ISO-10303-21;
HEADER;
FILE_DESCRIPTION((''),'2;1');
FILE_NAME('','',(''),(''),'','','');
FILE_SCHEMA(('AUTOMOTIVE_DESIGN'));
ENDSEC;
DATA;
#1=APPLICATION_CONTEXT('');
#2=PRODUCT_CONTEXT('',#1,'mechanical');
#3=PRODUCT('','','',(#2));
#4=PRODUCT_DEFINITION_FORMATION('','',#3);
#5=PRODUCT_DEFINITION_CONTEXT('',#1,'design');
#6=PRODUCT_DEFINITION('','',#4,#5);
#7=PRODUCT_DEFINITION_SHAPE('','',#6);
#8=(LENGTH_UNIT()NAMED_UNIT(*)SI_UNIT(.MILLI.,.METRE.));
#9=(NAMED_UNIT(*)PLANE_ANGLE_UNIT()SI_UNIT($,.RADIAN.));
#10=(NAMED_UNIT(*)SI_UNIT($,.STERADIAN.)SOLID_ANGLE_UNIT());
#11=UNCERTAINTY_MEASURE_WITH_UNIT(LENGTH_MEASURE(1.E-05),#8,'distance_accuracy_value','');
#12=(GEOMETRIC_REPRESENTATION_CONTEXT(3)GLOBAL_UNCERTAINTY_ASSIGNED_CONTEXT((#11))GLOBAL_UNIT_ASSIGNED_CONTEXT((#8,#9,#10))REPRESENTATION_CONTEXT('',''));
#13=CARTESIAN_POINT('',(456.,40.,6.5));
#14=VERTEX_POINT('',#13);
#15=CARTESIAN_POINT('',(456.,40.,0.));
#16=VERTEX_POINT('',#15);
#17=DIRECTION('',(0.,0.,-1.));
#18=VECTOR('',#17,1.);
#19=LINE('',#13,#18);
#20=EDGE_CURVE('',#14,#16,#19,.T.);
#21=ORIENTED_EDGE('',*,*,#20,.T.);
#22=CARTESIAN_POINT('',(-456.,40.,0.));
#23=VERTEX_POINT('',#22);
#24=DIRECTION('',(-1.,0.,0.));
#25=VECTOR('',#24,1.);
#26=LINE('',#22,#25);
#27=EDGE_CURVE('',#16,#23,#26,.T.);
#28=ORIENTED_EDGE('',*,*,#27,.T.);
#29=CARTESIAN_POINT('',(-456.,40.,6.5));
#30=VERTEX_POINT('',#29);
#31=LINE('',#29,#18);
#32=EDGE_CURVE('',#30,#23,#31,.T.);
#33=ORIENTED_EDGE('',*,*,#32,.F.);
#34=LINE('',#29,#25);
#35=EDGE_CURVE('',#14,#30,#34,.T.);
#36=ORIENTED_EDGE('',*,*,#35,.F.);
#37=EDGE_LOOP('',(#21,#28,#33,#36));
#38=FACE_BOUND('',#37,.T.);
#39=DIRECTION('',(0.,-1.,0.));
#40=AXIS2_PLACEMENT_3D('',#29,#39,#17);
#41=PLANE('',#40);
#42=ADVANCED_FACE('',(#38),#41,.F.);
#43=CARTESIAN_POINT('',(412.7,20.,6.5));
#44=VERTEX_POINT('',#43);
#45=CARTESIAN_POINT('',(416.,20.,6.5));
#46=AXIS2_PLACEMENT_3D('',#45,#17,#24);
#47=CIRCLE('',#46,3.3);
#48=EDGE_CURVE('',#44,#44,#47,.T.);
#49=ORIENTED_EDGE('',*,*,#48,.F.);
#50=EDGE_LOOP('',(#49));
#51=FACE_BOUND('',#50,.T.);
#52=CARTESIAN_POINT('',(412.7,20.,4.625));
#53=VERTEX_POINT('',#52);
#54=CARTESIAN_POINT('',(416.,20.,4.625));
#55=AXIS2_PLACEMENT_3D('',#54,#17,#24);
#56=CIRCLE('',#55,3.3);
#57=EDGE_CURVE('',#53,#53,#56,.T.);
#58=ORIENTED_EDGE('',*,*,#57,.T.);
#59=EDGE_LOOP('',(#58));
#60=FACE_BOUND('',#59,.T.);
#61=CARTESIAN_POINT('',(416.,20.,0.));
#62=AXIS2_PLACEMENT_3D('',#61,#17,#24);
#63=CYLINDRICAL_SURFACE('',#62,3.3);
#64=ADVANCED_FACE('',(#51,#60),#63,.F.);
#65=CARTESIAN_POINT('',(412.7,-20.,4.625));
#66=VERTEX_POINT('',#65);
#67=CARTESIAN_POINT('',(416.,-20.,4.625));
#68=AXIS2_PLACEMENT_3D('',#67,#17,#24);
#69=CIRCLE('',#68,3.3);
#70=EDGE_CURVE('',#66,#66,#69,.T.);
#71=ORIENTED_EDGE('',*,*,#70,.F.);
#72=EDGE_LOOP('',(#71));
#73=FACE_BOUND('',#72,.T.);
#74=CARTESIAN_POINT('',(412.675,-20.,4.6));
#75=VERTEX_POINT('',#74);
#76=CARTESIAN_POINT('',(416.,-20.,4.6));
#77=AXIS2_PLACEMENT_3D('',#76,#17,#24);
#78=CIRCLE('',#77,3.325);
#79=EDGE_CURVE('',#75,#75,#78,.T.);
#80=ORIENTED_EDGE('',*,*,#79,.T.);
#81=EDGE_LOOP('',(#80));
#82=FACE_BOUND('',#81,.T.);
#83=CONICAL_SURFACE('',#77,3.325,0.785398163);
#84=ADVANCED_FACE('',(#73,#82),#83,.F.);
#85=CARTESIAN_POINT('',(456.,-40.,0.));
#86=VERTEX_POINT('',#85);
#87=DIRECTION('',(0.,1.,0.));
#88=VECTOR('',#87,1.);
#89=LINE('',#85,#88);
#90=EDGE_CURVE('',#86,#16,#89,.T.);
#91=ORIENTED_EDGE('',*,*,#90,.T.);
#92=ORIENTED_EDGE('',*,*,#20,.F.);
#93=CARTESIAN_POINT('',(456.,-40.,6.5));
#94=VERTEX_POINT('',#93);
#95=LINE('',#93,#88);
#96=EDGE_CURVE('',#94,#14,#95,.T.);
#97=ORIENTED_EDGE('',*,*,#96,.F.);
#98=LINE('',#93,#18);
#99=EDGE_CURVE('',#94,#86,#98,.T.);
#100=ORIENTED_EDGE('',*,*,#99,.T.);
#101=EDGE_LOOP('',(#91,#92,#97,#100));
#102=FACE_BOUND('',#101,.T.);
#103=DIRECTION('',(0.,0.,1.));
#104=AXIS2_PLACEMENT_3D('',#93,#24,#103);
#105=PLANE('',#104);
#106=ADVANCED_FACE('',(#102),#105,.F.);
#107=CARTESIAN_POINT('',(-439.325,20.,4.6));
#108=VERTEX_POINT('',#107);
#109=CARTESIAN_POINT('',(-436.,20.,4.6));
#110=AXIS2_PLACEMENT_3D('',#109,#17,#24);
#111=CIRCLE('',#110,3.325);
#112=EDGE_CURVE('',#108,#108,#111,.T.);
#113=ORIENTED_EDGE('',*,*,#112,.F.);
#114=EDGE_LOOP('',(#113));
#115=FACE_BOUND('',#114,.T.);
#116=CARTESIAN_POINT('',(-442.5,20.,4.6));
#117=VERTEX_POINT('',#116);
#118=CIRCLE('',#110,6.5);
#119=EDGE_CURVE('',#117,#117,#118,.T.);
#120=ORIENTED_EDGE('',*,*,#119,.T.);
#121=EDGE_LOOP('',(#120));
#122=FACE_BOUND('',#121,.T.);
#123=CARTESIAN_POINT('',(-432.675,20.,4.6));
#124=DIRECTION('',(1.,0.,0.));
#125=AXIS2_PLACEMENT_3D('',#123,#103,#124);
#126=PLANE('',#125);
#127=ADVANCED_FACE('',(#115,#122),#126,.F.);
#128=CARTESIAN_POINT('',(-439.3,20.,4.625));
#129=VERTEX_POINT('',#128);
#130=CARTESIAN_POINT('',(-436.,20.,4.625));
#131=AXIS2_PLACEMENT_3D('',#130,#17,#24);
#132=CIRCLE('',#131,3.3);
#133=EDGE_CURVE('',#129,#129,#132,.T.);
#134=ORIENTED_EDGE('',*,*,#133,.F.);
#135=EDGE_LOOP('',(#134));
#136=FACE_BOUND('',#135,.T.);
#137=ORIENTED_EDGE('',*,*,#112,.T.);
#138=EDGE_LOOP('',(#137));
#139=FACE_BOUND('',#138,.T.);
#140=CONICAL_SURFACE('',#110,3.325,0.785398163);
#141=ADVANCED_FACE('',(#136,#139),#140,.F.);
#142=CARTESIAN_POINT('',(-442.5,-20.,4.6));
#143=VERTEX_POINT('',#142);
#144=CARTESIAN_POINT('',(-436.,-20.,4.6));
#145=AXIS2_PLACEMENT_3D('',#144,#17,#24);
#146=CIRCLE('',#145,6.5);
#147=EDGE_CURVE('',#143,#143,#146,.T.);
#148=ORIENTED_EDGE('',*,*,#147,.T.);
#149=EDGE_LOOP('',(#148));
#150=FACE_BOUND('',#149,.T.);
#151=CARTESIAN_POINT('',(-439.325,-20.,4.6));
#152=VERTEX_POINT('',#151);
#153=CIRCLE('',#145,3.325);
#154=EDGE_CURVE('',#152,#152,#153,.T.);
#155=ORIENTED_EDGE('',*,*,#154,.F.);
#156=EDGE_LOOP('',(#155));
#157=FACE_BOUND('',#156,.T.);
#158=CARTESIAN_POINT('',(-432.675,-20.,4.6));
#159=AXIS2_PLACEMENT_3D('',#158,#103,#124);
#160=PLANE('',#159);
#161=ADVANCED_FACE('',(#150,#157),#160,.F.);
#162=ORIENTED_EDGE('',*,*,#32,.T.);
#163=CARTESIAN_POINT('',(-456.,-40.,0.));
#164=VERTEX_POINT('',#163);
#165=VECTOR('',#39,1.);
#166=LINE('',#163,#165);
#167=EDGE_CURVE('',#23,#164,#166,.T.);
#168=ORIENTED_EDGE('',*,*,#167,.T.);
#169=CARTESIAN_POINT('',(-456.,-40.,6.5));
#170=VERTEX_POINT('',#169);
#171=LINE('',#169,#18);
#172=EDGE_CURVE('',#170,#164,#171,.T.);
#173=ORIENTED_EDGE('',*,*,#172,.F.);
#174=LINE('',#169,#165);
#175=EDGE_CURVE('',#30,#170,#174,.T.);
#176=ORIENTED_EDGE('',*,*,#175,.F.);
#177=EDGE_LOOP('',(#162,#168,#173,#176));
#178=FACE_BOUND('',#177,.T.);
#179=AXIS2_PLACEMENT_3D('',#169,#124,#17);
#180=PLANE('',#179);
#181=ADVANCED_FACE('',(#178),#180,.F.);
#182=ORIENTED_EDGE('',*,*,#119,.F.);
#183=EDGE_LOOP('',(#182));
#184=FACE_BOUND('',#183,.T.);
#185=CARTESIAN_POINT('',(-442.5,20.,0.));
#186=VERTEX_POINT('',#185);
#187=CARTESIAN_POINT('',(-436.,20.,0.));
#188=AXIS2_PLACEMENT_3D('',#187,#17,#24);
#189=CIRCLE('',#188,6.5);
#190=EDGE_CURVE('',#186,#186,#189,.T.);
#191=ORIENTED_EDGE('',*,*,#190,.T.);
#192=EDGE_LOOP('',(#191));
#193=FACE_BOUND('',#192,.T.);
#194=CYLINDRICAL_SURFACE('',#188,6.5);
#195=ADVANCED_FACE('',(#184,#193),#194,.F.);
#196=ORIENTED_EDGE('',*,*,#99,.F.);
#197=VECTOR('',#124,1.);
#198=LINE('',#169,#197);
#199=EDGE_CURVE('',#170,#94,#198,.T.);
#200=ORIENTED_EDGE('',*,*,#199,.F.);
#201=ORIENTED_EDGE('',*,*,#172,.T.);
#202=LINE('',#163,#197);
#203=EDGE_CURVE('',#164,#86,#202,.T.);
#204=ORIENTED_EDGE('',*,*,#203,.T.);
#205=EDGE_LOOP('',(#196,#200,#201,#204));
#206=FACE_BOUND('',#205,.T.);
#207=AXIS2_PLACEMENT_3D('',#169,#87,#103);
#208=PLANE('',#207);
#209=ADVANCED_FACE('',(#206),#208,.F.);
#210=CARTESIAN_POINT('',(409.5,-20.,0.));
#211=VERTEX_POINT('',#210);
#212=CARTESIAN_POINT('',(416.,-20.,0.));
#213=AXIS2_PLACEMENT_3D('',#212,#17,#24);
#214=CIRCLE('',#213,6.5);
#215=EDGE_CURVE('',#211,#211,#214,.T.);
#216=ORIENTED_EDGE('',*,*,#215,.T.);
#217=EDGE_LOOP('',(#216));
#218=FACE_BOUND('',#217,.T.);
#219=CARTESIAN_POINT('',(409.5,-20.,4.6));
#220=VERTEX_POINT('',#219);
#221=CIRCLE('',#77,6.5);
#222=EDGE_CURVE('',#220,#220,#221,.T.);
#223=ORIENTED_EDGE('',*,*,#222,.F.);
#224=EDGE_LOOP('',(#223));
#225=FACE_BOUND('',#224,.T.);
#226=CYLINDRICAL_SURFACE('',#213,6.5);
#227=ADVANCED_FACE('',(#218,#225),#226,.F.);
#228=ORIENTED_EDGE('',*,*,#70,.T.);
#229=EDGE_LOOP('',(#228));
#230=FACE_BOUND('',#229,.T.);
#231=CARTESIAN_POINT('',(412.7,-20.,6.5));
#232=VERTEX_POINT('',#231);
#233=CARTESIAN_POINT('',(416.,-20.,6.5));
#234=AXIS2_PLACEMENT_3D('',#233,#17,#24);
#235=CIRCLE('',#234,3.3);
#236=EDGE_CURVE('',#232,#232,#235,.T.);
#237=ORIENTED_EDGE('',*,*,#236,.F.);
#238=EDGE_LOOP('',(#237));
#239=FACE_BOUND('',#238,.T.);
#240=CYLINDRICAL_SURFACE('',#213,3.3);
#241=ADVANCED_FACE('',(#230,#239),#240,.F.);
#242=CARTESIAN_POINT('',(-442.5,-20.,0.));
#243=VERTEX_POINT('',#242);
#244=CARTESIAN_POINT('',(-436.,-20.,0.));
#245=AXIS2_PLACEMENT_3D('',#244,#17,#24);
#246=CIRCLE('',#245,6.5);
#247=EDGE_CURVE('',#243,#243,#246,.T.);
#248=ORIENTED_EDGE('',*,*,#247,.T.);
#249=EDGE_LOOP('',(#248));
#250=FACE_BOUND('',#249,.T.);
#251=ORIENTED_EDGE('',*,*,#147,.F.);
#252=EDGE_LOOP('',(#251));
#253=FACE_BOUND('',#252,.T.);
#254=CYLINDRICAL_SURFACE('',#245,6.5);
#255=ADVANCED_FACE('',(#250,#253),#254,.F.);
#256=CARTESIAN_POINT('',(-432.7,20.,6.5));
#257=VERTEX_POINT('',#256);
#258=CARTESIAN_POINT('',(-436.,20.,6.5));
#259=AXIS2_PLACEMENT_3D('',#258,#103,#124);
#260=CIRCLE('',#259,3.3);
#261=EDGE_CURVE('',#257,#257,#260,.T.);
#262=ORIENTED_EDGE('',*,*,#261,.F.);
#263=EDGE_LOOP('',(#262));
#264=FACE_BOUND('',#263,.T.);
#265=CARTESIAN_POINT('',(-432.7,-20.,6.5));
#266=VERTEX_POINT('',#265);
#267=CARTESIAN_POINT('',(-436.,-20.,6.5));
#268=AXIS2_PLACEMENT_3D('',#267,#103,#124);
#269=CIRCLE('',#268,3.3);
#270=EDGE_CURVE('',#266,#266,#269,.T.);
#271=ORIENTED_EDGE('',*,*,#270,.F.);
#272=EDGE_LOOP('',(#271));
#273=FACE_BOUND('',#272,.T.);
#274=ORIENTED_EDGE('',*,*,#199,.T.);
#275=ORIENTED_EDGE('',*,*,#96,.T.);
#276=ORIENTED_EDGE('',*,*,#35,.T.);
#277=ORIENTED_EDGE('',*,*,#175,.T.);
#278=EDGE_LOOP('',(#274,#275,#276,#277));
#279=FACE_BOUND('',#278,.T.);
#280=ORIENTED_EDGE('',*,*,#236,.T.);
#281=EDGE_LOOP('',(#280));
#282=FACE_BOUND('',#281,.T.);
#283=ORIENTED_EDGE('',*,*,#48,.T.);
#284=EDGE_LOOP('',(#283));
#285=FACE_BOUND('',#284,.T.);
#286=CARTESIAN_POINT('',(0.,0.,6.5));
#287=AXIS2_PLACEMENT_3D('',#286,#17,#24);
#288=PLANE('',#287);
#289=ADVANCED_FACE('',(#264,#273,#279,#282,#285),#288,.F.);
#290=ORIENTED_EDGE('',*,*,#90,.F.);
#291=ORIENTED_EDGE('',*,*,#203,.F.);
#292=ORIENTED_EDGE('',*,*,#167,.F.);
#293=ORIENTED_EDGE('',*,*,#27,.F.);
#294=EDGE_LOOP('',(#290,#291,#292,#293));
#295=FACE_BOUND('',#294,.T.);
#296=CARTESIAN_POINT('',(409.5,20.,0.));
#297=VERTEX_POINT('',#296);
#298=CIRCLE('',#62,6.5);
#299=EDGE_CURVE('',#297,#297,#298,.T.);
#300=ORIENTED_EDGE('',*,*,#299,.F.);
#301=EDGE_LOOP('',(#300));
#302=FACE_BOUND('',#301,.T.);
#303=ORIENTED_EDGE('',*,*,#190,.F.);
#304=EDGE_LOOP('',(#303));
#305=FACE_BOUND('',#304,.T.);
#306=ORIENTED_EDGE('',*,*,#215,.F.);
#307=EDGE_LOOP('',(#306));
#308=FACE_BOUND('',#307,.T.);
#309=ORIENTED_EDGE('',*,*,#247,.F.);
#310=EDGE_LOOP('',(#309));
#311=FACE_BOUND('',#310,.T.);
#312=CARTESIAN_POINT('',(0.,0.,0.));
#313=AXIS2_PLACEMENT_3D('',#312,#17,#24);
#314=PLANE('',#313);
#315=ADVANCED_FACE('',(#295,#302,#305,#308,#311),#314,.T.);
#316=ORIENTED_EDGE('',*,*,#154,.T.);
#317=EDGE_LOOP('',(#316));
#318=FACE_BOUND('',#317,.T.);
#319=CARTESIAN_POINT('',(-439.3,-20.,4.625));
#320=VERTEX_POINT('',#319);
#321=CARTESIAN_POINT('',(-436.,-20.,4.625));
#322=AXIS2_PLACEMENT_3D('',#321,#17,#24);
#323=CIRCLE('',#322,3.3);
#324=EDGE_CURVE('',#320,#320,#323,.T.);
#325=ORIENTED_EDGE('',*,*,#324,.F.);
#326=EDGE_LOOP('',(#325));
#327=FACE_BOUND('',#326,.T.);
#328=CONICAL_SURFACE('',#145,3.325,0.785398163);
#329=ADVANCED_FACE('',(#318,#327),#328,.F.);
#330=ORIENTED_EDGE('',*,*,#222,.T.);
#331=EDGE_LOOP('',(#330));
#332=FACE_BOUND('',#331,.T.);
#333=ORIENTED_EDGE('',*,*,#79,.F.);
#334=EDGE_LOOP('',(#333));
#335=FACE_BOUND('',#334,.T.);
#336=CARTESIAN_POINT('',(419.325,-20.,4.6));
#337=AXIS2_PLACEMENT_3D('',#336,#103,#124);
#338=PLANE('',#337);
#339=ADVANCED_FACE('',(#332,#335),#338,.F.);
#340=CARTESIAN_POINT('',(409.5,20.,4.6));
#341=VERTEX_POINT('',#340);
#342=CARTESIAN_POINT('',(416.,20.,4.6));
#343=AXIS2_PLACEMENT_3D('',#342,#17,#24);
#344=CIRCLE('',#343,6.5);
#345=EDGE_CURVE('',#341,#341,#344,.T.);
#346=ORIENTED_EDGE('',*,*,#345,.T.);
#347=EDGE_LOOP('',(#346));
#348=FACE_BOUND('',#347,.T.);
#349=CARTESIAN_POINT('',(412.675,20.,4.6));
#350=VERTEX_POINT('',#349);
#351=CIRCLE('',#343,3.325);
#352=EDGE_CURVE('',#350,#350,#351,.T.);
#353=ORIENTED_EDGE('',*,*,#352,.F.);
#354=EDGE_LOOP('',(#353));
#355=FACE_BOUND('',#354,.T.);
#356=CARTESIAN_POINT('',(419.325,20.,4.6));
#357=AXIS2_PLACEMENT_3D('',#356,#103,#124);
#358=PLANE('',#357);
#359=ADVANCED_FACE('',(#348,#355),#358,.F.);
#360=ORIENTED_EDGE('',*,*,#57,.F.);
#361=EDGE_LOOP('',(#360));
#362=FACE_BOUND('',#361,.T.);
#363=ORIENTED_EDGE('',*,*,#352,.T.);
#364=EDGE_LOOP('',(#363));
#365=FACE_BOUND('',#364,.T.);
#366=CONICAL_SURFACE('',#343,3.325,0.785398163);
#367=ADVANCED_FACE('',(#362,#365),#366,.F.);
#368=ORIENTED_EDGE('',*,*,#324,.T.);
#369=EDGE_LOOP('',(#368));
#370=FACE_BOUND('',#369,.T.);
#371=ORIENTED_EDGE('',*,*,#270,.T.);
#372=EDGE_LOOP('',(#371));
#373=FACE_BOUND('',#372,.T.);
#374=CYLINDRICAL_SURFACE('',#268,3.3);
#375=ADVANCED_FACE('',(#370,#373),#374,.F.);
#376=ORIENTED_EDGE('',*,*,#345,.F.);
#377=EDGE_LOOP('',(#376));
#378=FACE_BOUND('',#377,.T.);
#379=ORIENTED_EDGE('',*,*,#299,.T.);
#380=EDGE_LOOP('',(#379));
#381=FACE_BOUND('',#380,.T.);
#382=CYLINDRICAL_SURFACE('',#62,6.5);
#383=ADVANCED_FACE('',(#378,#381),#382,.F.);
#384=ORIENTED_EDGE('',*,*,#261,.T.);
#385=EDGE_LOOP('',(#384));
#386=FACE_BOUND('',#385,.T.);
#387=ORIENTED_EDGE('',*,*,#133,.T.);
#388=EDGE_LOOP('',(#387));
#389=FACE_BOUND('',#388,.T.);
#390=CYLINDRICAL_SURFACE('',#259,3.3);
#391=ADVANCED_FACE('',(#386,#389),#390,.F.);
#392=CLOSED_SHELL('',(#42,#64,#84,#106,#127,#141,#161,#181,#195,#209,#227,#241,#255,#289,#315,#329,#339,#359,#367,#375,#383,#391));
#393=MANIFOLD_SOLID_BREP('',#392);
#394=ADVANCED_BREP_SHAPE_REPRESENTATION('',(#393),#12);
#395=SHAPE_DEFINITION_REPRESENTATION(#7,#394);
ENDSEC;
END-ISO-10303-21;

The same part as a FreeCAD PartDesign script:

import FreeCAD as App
import Part
import Sketcher

V = App.Vector
Q = App.Units.Quantity

doc = App.newDocument("Part")
body = doc.addObject("PartDesign::Body", "Body")

# Sketch on XY plane
sketch1 = body.newObject("Sketcher::SketchObject", "Sketch")
sketch1.AttachmentSupport = (doc.getObject("XY_Plane"), [""])
sketch1.MapMode = "FlatFace"
sketch1.addGeometry([
    Part.LineSegment(V(-456, 40, 0), V(-456, -40, 0)),
    Part.LineSegment(V(-456, -40, 0), V(456, -40, 0)),
    Part.LineSegment(V(456, -40, 0), V(456, 40, 0)),
    Part.LineSegment(V(456, 40, 0), V(-456, 40, 0)),
], False)
sketch1.addConstraint([
    Sketcher.Constraint("Coincident", 0, 2, 1, 1),
    Sketcher.Constraint("Coincident", 1, 2, 2, 1),
    Sketcher.Constraint("Coincident", 2, 2, 3, 1),
    Sketcher.Constraint("Coincident", 3, 2, 0, 1),
    Sketcher.Constraint("Vertical", 0),
    Sketcher.Constraint("Horizontal", 1),
    Sketcher.Constraint("Vertical", 2),
    Sketcher.Constraint("Horizontal", 3),
    Sketcher.Constraint("Symmetric", 0, 2, 2, 2, -1, 1),
    Sketcher.Constraint("DistanceX", 1, 1, 1, 2, Q("912 mm")),
    Sketcher.Constraint("DistanceY", 0, 2, 0, 1, Q("80 mm")),
])
pad1 = body.newObject("PartDesign::Pad", "Pad")
pad1.Profile = sketch1
pad1.Length = 6.5

# Sketch on XY plane
sketch2 = body.newObject("Sketcher::SketchObject", "Sketch001")
sketch2.AttachmentSupport = (doc.getObject("XY_Plane"), [""])
sketch2.MapMode = "FlatFace"
sketch2.AttachmentOffset = App.Placement(V(0, 0, 6.5), App.Rotation())
sketch2.addGeometry([
    Part.Circle(V(-436, 20, 0), V(0, 0, 1), 3.3),
    Part.Circle(V(-436, -20, 0), V(0, 0, 1), 3.3),
], False)
sketch2.addConstraint([
    Sketcher.Constraint("Equal", 0, 1),
    Sketcher.Constraint("Symmetric", 0, 3, 1, 3, -1),
    Sketcher.Constraint("Diameter", 0, Q("6.6 mm")),
    Sketcher.Constraint("DistanceX", 0, 3, -1, 1, Q("436 mm")),
    Sketcher.Constraint("DistanceY", -1, 1, 0, 3, Q("20 mm")),
])
doc.recompute()
hole = body.newObject("PartDesign::Hole", "Hole")
hole.Profile = sketch2
hole.ThreadType = "None"
hole.Diameter = 6.6
hole.DepthType = "ThroughAll"

# Sketch on YZ plane
sketch3 = body.newObject("Sketcher::SketchObject", "Sketch002")
sketch3.AttachmentSupport = (doc.getObject("YZ_Plane"), [""])
sketch3.MapMode = "FlatFace"
sketch3.AttachmentOffset = App.Placement(V(0, 0, -436), App.Rotation())
sketch3.addGeometry([
    Part.LineSegment(V(20, 6.5, 0), V(20, 0, 0)),  # 0
    Part.LineSegment(V(20, 0, 0), V(26.5, 0, 0)),  # 1
    Part.LineSegment(V(26.5, 0, 0), V(26.5, 4.6, 0)),  # 2
    Part.LineSegment(V(26.5, 4.6, 0), V(23.325, 4.6, 0)),  # 3
    Part.LineSegment(V(23.325, 4.6, 0), V(23.3, 4.625, 0)),  # 4
    Part.LineSegment(V(23.3, 4.625, 0), V(23.3, 6.5, 0)),  # 5
    Part.LineSegment(V(23.3, 6.5, 0), V(20, 6.5, 0)),  # 6
], False)
sketch3.addGeometry(Part.LineSegment(V(20, 0, 0), V(20, 6.5, 0)), True)  # axis
sketch3.addConstraint([
    Sketcher.Constraint("Coincident", 0, 2, 1, 1),
    Sketcher.Constraint("Coincident", 1, 2, 2, 1),
    Sketcher.Constraint("Coincident", 2, 2, 3, 1),
    Sketcher.Constraint("Coincident", 3, 2, 4, 1),
    Sketcher.Constraint("Coincident", 4, 2, 5, 1),
    Sketcher.Constraint("Coincident", 5, 2, 6, 1),
    Sketcher.Constraint("Coincident", 6, 2, 0, 1),
    Sketcher.Constraint("Vertical", 0),
    Sketcher.Constraint("Horizontal", 1),
    Sketcher.Constraint("Vertical", 2),
    Sketcher.Constraint("Horizontal", 3),
    Sketcher.Constraint("Vertical", 5),
    Sketcher.Constraint("Horizontal", 6),
    Sketcher.Constraint("Vertical", 7),
    Sketcher.Constraint("Coincident", 7, 1, 0, 2),
    Sketcher.Constraint("PointOnObject", 0, 2, -1),
    Sketcher.Constraint("Horizontal", 5, 2, 7, 2),
    Sketcher.Constraint("Equal", 1, 0),
    Sketcher.Constraint("Angle", 4, Q("135 deg")),
    Sketcher.Constraint("DistanceX", 1, 1, 1, 2, Q("6.5 mm")),
    Sketcher.Constraint("DistanceX", 6, 2, 6, 1, Q("3.3 mm")),
    Sketcher.Constraint("DistanceY", 2, 1, 2, 2, Q("4.6 mm")),
    Sketcher.Constraint("DistanceX", -1, 1, 0, 2, Q("20 mm")),
    Sketcher.Constraint("DistanceX", 3, 2, 3, 1, Q("3.175 mm")),
])
groove = body.newObject("PartDesign::Groove", "Groove")
groove.Profile = sketch3
groove.ReferenceAxis = (sketch3, ["Axis0"])
groove.Angle = 360
doc.recompute()

linearpattern = body.newObject("PartDesign::LinearPattern", "LinearPattern")
linearpattern.Originals = [groove]
linearpattern.Direction = (doc.getObject("Y_Axis"), [""])
linearpattern.Mode = "offset"
linearpattern.Offset = 40
linearpattern.Occurrences = 2
linearpattern.Reversed = True
body.Tip = linearpattern
doc.recompute()

linearpattern2 = body.newObject("PartDesign::LinearPattern", "LinearPattern001")
linearpattern2.Originals = [groove]
linearpattern2.Direction = (doc.getObject("X_Axis"), [""])
linearpattern2.Mode = "offset"
linearpattern2.Offset = 852
linearpattern2.Occurrences = 2
body.Tip = linearpattern2

# Sketch on YZ plane
sketch4 = body.newObject("Sketcher::SketchObject", "Sketch003")
sketch4.AttachmentSupport = (doc.getObject("YZ_Plane"), [""])
sketch4.MapMode = "FlatFace"
sketch4.AttachmentOffset = App.Placement(V(0, 0, 416), App.Rotation())
sketch4.addGeometry([
    Part.LineSegment(V(-20, 6.5, 0), V(-20, 0, 0)),  # 0
    Part.LineSegment(V(-20, 0, 0), V(-13.5, 0, 0)),  # 1
    Part.LineSegment(V(-13.5, 0, 0), V(-13.5, 4.6, 0)),  # 2
    Part.LineSegment(V(-13.5, 4.6, 0), V(-16.675, 4.6, 0)),  # 3
    Part.LineSegment(V(-16.675, 4.6, 0), V(-16.7, 4.625, 0)),  # 4
    Part.LineSegment(V(-16.7, 4.625, 0), V(-16.7, 6.5, 0)),  # 5
    Part.LineSegment(V(-16.7, 6.5, 0), V(-20, 6.5, 0)),  # 6
], False)
sketch4.addGeometry(Part.LineSegment(V(-20, 0, 0), V(-20, 6.5, 0)), True)  # axis
sketch4.addConstraint([
    Sketcher.Constraint("Coincident", 0, 2, 1, 1),
    Sketcher.Constraint("Coincident", 1, 2, 2, 1),
    Sketcher.Constraint("Coincident", 2, 2, 3, 1),
    Sketcher.Constraint("Coincident", 3, 2, 4, 1),
    Sketcher.Constraint("Coincident", 4, 2, 5, 1),
    Sketcher.Constraint("Coincident", 5, 2, 6, 1),
    Sketcher.Constraint("Coincident", 6, 2, 0, 1),
    Sketcher.Constraint("Vertical", 0),
    Sketcher.Constraint("Horizontal", 1),
    Sketcher.Constraint("Vertical", 2),
    Sketcher.Constraint("Horizontal", 3),
    Sketcher.Constraint("Vertical", 5),
    Sketcher.Constraint("Horizontal", 6),
    Sketcher.Constraint("Vertical", 7),
    Sketcher.Constraint("Coincident", 7, 1, 0, 2),
    Sketcher.Constraint("PointOnObject", 0, 2, -1),
    Sketcher.Constraint("Horizontal", 5, 2, 7, 2),
    Sketcher.Constraint("Equal", 1, 0),
    Sketcher.Constraint("Angle", 4, Q("135 deg")),
    Sketcher.Constraint("DistanceX", 1, 1, 1, 2, Q("6.5 mm")),
    Sketcher.Constraint("DistanceX", 6, 2, 6, 1, Q("3.3 mm")),
    Sketcher.Constraint("DistanceY", 2, 1, 2, 2, Q("4.6 mm")),
    Sketcher.Constraint("DistanceX", 0, 2, -1, 1, Q("20 mm")),
    Sketcher.Constraint("DistanceX", 3, 2, 3, 1, Q("3.175 mm")),
])
groove2 = body.newObject("PartDesign::Groove", "Groove001")
groove2.Profile = sketch4
groove2.ReferenceAxis = (sketch4, ["Axis0"])
groove2.Angle = 360

doc.recompute()
